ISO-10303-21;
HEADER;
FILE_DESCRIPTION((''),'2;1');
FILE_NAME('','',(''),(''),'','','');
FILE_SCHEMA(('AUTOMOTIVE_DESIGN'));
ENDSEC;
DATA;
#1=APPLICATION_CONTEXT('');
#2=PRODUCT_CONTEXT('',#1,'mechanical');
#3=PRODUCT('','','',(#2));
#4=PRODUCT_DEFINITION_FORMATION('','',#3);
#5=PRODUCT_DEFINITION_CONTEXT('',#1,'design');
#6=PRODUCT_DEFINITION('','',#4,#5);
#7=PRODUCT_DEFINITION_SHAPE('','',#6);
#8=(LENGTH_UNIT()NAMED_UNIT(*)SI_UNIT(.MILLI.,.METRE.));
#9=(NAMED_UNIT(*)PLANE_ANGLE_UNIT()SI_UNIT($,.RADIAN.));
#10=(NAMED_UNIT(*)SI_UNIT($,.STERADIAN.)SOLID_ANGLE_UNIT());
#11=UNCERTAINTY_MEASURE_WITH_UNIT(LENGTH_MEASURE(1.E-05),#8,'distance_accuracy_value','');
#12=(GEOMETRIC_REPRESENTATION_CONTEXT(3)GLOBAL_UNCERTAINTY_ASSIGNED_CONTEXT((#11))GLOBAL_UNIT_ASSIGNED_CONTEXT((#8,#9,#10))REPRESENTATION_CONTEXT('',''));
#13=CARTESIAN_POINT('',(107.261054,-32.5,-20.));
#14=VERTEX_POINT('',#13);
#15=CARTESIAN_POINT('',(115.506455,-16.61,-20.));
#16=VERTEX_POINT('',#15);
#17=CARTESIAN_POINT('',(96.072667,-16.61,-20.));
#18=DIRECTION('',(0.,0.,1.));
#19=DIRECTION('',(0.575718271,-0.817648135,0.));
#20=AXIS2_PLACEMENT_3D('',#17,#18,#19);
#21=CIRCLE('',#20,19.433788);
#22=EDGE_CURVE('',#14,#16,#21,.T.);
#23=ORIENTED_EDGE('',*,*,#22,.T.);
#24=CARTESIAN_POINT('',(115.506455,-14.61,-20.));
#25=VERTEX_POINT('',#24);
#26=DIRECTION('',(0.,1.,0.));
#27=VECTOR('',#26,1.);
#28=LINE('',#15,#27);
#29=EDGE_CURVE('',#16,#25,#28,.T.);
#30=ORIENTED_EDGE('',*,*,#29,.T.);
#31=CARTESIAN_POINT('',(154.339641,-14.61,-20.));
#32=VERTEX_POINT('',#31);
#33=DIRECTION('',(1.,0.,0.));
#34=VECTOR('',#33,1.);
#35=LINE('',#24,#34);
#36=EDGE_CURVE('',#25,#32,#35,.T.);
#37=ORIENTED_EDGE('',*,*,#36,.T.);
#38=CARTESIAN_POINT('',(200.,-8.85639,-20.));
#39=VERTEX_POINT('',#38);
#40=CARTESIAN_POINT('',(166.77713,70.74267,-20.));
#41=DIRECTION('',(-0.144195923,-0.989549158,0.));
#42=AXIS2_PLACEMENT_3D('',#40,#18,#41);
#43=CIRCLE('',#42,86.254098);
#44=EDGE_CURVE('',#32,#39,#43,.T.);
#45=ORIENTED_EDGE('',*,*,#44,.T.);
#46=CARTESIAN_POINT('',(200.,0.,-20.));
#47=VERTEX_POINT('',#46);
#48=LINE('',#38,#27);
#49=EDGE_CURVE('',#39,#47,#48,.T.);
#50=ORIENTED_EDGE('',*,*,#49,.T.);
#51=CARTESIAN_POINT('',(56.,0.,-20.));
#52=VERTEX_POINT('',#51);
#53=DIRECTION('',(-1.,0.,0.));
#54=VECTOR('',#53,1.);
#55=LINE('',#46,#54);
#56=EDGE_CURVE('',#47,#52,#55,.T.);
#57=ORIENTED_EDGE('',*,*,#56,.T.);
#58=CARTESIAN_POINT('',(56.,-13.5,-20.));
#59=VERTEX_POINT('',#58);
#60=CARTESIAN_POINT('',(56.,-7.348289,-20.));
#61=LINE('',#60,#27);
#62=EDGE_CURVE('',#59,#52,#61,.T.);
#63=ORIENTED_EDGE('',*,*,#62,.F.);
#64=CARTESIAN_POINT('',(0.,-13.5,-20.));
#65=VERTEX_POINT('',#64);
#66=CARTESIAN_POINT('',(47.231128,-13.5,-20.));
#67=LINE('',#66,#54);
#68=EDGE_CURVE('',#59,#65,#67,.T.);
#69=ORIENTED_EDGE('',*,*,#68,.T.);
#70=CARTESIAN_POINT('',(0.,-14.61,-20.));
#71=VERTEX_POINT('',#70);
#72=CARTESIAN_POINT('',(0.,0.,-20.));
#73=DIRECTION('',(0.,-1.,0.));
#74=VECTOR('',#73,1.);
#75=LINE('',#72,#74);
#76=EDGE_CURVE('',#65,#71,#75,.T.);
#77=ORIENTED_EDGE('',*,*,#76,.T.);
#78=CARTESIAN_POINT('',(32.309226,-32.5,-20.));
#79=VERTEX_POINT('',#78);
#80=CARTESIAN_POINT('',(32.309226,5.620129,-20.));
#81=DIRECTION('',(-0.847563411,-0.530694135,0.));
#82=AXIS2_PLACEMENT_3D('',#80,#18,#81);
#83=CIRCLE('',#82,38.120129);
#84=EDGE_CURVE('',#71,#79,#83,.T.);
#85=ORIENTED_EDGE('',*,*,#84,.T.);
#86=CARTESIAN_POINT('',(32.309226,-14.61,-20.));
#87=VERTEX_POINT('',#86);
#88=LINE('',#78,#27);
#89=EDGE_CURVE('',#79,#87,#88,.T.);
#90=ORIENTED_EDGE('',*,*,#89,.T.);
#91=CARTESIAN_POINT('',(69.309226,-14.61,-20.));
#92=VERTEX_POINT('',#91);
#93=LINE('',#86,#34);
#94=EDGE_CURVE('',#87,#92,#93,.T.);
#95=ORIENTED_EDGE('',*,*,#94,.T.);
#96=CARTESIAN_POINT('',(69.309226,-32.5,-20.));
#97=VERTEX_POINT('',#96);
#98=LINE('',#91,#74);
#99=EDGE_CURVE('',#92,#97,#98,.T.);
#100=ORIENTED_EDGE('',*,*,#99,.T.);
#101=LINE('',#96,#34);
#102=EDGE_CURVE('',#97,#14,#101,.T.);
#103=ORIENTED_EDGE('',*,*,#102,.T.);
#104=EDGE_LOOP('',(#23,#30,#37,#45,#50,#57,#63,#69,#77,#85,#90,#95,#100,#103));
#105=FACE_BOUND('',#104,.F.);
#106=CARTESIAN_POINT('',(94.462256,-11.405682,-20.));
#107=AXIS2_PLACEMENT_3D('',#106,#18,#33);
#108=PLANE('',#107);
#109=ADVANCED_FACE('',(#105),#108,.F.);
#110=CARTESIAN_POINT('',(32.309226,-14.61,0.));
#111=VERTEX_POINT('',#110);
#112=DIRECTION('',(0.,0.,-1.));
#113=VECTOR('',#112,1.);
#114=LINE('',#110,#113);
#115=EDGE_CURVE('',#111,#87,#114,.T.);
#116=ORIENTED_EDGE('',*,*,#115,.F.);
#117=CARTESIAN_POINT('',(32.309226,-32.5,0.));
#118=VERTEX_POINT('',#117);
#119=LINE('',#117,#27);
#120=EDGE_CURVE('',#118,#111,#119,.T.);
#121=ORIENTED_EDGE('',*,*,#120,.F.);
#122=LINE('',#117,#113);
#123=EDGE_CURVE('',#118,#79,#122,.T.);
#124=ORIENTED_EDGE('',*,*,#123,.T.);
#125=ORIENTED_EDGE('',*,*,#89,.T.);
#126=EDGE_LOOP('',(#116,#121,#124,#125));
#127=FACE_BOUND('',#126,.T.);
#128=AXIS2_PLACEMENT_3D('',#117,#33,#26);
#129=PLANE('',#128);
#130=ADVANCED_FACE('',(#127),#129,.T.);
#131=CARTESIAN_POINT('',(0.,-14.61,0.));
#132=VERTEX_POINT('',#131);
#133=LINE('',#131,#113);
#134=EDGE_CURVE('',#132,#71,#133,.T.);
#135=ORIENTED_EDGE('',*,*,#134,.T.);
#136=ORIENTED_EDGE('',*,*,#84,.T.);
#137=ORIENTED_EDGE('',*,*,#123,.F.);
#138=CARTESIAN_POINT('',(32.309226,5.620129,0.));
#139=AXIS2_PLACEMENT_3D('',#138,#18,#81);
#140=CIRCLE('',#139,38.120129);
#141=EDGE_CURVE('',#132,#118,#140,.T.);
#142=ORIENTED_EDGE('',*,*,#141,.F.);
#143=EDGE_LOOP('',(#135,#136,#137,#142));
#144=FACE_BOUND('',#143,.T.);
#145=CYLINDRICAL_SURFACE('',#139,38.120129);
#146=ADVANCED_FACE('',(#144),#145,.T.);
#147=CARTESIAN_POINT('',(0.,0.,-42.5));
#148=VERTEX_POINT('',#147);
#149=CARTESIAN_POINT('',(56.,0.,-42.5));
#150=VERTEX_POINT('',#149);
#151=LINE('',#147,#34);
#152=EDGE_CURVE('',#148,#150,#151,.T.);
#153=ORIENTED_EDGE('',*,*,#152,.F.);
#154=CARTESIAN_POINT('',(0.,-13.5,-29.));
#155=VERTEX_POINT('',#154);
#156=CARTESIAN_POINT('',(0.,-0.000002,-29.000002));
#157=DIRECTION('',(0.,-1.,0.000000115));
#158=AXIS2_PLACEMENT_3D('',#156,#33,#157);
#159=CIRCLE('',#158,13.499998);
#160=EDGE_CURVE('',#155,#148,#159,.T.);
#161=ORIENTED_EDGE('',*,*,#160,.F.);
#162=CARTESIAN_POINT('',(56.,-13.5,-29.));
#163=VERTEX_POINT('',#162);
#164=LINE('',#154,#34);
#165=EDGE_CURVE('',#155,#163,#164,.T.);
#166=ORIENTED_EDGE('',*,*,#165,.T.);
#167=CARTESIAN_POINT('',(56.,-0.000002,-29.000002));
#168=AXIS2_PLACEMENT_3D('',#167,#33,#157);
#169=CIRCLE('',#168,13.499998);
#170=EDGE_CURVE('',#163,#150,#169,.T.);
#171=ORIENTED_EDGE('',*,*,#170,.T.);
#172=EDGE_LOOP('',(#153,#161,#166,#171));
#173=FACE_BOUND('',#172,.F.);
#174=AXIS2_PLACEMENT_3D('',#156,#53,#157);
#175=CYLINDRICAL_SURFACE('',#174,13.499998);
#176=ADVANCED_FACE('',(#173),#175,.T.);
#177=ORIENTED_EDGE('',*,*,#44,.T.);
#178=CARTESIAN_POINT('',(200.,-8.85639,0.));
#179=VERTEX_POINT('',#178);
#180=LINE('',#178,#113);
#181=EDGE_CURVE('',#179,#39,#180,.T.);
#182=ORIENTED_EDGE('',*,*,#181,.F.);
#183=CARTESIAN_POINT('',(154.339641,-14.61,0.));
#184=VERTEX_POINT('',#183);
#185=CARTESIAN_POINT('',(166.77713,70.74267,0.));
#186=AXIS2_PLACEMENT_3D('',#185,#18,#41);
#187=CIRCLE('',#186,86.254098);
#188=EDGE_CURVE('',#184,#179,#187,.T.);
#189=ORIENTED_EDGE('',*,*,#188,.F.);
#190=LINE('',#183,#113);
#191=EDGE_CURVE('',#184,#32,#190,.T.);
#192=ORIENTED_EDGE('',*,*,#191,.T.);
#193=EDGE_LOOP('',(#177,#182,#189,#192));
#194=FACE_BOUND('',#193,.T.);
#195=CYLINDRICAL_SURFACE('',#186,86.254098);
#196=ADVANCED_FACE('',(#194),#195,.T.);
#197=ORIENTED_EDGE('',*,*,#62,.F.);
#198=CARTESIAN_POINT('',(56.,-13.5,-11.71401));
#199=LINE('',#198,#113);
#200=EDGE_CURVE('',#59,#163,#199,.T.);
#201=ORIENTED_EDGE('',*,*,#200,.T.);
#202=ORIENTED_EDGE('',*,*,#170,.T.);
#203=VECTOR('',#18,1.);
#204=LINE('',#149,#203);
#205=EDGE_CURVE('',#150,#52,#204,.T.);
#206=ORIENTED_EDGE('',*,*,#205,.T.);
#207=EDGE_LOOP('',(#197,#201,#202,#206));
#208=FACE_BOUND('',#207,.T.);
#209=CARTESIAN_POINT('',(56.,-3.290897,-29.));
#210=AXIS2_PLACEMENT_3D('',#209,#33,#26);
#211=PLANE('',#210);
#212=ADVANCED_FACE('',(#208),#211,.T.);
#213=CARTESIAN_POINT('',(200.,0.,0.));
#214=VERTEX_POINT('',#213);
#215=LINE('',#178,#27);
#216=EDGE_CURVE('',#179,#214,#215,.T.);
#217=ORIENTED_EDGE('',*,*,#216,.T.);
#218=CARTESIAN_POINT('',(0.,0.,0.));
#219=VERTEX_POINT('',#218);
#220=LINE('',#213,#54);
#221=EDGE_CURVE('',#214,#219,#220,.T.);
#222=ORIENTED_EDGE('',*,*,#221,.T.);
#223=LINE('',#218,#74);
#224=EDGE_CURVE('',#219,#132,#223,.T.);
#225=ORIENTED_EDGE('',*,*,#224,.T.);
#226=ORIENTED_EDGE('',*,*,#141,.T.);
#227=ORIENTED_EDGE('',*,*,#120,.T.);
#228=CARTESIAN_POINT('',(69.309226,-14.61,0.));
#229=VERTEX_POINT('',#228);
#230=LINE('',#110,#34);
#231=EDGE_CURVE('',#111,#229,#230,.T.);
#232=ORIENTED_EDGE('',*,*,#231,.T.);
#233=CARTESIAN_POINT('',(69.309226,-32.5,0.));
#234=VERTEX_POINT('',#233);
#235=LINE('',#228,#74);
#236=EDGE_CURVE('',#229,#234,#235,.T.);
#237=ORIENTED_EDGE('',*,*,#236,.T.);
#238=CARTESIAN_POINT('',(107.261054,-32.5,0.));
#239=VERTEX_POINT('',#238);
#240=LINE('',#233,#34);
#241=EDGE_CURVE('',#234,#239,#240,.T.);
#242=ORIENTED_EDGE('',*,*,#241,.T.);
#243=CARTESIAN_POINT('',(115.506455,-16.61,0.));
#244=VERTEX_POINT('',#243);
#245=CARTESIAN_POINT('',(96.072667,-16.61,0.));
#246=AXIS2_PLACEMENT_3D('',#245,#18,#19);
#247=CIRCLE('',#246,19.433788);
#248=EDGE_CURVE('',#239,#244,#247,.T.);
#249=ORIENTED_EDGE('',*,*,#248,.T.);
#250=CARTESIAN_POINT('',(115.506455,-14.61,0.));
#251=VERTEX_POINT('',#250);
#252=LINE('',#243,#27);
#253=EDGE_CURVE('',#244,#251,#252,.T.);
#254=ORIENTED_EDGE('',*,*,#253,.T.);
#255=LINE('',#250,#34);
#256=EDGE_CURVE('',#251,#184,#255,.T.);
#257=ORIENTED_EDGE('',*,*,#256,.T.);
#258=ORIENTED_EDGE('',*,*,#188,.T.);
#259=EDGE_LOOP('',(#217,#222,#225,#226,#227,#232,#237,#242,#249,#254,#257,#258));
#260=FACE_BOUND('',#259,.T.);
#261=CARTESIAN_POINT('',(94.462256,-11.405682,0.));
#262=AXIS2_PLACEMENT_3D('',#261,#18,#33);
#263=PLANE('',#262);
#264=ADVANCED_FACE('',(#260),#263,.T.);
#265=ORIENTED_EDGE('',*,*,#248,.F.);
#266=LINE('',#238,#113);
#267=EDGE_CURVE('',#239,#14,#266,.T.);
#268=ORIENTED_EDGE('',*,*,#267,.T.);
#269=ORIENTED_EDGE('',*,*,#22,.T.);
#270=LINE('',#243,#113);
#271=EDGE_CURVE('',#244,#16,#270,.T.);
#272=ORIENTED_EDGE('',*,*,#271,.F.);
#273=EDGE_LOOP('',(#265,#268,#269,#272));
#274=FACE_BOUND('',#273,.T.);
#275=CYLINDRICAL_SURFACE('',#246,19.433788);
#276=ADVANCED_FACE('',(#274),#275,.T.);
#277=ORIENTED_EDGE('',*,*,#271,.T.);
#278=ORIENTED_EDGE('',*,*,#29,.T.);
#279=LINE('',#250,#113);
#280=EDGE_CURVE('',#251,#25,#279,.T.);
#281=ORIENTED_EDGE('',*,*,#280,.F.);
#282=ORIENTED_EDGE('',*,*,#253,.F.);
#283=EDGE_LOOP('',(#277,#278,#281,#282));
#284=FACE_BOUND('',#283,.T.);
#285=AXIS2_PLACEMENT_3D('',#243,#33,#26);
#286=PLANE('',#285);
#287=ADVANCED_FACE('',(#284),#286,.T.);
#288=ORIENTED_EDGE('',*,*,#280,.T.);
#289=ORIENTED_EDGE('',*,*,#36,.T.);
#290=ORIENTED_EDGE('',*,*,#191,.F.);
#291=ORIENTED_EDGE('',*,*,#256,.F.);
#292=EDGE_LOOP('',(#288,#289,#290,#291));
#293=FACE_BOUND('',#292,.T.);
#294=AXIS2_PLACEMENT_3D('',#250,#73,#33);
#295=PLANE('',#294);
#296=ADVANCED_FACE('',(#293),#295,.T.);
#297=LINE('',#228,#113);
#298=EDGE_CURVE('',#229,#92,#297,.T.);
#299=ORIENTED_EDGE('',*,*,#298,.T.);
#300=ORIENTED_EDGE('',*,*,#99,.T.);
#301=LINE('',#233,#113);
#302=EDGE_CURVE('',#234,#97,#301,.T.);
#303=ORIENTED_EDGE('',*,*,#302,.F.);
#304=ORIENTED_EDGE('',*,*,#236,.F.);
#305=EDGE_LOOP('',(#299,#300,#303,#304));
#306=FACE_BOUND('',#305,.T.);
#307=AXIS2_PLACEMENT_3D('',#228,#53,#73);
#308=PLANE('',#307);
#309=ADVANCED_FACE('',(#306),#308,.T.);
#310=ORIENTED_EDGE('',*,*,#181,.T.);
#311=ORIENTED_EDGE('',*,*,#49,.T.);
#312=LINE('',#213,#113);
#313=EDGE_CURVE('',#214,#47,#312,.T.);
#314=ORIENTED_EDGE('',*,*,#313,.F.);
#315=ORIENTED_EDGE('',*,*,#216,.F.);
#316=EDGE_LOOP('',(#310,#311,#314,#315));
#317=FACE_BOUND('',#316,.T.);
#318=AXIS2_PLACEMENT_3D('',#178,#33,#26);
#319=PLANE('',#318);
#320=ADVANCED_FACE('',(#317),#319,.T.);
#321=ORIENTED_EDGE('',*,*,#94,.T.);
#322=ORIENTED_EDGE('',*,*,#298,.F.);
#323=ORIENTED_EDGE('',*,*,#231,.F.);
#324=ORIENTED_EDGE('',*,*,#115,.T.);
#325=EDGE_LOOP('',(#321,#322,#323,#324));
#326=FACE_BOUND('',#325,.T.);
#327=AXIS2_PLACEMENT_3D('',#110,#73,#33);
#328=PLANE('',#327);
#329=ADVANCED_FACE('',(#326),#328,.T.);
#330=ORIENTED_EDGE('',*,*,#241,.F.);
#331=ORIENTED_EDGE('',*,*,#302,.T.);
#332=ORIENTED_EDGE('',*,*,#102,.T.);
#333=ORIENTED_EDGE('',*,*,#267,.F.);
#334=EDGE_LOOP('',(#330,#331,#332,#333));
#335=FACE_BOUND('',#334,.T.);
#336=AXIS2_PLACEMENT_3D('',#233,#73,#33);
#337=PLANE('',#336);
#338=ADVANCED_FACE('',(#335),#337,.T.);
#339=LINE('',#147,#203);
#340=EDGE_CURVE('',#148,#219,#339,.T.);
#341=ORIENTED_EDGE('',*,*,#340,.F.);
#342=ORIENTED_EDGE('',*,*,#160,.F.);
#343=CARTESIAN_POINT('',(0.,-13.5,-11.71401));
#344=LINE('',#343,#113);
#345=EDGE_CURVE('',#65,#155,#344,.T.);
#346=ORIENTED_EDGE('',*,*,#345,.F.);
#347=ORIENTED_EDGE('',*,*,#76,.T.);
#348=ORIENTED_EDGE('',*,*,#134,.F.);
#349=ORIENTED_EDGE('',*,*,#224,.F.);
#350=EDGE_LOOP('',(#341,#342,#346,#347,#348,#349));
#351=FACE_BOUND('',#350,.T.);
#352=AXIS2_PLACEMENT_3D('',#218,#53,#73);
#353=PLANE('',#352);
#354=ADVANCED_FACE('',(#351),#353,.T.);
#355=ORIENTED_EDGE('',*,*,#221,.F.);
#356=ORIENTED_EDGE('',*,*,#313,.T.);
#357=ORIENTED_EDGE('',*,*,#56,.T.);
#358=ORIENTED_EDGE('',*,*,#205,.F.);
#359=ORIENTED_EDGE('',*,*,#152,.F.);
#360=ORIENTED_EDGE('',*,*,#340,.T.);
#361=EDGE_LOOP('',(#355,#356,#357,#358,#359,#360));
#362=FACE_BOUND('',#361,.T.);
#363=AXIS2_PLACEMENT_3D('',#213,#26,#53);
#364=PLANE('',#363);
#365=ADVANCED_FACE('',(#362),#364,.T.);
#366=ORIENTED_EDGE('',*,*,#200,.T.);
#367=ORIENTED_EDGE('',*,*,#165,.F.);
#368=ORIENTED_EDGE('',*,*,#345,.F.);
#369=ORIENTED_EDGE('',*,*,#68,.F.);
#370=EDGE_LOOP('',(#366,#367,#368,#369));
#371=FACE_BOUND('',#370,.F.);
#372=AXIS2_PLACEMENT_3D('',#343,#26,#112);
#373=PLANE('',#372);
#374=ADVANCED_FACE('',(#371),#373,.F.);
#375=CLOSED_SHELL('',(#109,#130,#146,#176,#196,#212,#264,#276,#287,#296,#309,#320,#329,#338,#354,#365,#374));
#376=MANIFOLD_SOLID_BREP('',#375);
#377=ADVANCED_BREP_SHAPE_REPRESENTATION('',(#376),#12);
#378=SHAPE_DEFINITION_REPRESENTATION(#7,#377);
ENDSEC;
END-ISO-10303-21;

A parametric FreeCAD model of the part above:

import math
import FreeCAD as App
import Part
import Sketcher

doc = App.newDocument("Part")
body = doc.addObject("PartDesign::Body", "Body")

# Sketch on XY plane
sketch1 = body.newObject("Sketcher::SketchObject", "Sketch")
sketch1.AttachmentSupport = (doc.getObject("XY_Plane"), [""])
sketch1.MapMode = "FlatFace"
sketch1.addGeometry([
    Part.LineSegment(App.Vector(200, 0, 0), App.Vector(0, 0, 0)),  # 0
    Part.LineSegment(App.Vector(0, 0, 0), App.Vector(0, -14.61, 0)),  # 1
    Part.ArcOfCircle(Part.Circle(App.Vector(32.309226, 5.620129, 0), App.Vector(0, 0, 1), 38.120129), math.radians(-147.947633), math.radians(-90)),  # 2
    Part.LineSegment(App.Vector(32.309226, -32.5, 0), App.Vector(32.309226, -14.61, 0)),  # 3
    Part.LineSegment(App.Vector(32.309226, -14.61, 0), App.Vector(69.309226, -14.61, 0)),  # 4
    Part.LineSegment(App.Vector(69.309226, -14.61, 0), App.Vector(69.309226, -32.5, 0)),  # 5
    Part.LineSegment(App.Vector(69.309226, -32.5, 0), App.Vector(107.261054, -32.5, 0)),  # 6
    Part.ArcOfCircle(Part.Circle(App.Vector(96.072667, -16.61, 0), App.Vector(0, 0, 1), 19.433788), math.radians(-54.850051), math.radians(-0.000001)),  # 7
    Part.LineSegment(App.Vector(115.506455, -16.61, 0), App.Vector(115.506455, -14.61, 0)),  # 8
    Part.LineSegment(App.Vector(115.506455, -14.61, 0), App.Vector(154.339641, -14.61, 0)),  # 9
    Part.ArcOfCircle(Part.Circle(App.Vector(166.77713, 70.74267, 0), App.Vector(0, 0, 1), 86.254098), math.radians(-98.29072), math.radians(-67.345433)),  # 10
    Part.LineSegment(App.Vector(200, -8.85639, 0), App.Vector(200, 0, 0)),  # 11
], False)
sketch1.addConstraint([
    Sketcher.Constraint("Coincident", 0, 2, 1, 1),
    Sketcher.Constraint("Coincident", 1, 2, 2, 1),
    Sketcher.Constraint("Coincident", 2, 2, 3, 1),
    Sketcher.Constraint("Coincident", 3, 2, 4, 1),
    Sketcher.Constraint("Coincident", 4, 2, 5, 1),
    Sketcher.Constraint("Coincident", 5, 2, 6, 1),
    Sketcher.Constraint("Coincident", 6, 2, 7, 1),
    Sketcher.Constraint("Tangent", 7, 2, 8, 1),
    Sketcher.Constraint("Coincident", 8, 2, 9, 1),
    Sketcher.Constraint("Coincident", 9, 2, 10, 1),
    Sketcher.Constraint("Coincident", 10, 2, 11, 1),
    Sketcher.Constraint("Coincident", 11, 2, 0, 1),
    Sketcher.Constraint("Horizontal", 0),
    Sketcher.Constraint("Vertical", 1),
    Sketcher.Constraint("Vertical", 3),
    Sketcher.Constraint("Horizontal", 4),
    Sketcher.Constraint("Vertical", 5),
    Sketcher.Constraint("Horizontal", 6),
    Sketcher.Constraint("Vertical", 8),
    Sketcher.Constraint("Horizontal", 9),
    Sketcher.Constraint("Vertical", 11),
    Sketcher.Constraint("Coincident", 0, 2, -1, 1),
    Sketcher.Constraint("Horizontal", 1, 2, 3, 2),
    Sketcher.Constraint("Horizontal", 2, 2, 5, 2),
    Sketcher.Constraint("Horizontal", 4, 2, 8, 2),
    Sketcher.Constraint("DistanceX", 0, 2, 0, 1, 200.0),
    Sketcher.Constraint("DistanceX", 4, 1, 4, 2, 37.0),
    Sketcher.Constraint("DistanceY", 8, 1, 8, 2, 2.0),
    Sketcher.Constraint("DistanceX", 2, 3, 4, 2, 37.0),
    Sketcher.Constraint("DistanceY", 1, 2, 1, 1, 14.61),
    Sketcher.Constraint("DistanceY", 3, 1, 3, 2, 17.89),
    Sketcher.Constraint("Radius", 10, 86.254098),
    Sketcher.Constraint("Radius", 2, 38.120129),
    Sketcher.Constraint("Radius", 7, 19.433788),
    Sketcher.Constraint("DistanceX", 6, 1, 6, 2, 37.951828),
    Sketcher.Constraint("DistanceY", 11, 1, 11, 2, 8.85639),
    Sketcher.Constraint("DistanceX", 9, 1, 9, 2, 38.833186),
])
pad1 = body.newObject("PartDesign::Pad", "Pad")
pad1.Profile = sketch1
pad1.Length = 20
pad1.Reversed = True

# Sketch on YZ plane
sketch2 = body.newObject("Sketcher::SketchObject", "Sketch001")
sketch2.AttachmentSupport = (doc.getObject("YZ_Plane"), [""])
sketch2.MapMode = "FlatFace"
sketch2.addGeometry([
    Part.LineSegment(App.Vector(0, -11.71401, 0), App.Vector(-13.5, -11.71401, 0)),
    Part.LineSegment(App.Vector(-13.5, -11.71401, 0), App.Vector(-13.5, -29, 0)),
    Part.ArcOfCircle(Part.Circle(App.Vector(-0.000002, -29.000002, 0), App.Vector(0, 0, 1), 13.499998), math.radians(179.999993), math.radians(270.000007)),
    Part.LineSegment(App.Vector(0, -42.5, 0), App.Vector(0, -11.71401, 0)),
], False)
sketch2.addConstraint([
    Sketcher.Constraint("Coincident", 0, 2, 1, 1),
    Sketcher.Constraint("Tangent", 1, 2, 2, 1),
    Sketcher.Constraint("Coincident", 2, 2, 3, 1),
    Sketcher.Constraint("Coincident", 3, 2, 0, 1),
    Sketcher.Constraint("Horizontal", 0),
    Sketcher.Constraint("Vertical", 1),
    Sketcher.Constraint("Vertical", 3),
    Sketcher.Constraint("PointOnObject", 2, 3, -2),
    Sketcher.Constraint("PointOnObject", 2, 2, -2),
    Sketcher.Constraint("Radius", 2, 13.499998),
    Sketcher.Constraint("DistanceY", 2, 3, -1, 1, 29.000002),
    Sketcher.Constraint("DistanceY", 1, 2, 1, 1, 17.28599),
])
pad2 = body.newObject("PartDesign::Pad", "Pad001")
pad2.Profile = sketch2
pad2.Length = 56

# Sketch on YZ plane
sketch3 = body.newObject("Sketcher::SketchObject", "Sketch002")
sketch3.AttachmentSupport = (doc.getObject("YZ_Plane"), [""])
sketch3.MapMode = "FlatFace"
sketch3.addGeometry([
    Part.LineSegment(App.Vector(0, -38.5, 0), App.Vector(0, -19.5, 0)),
    Part.ArcOfCircle(Part.Circle(App.Vector(0, -29, 0), App.Vector(0, 0, 1), 9.5), math.radians(90), math.radians(270)),
], False)
sketch3.addConstraint([
    Sketcher.Constraint("Coincident", 0, 1, 1, 2),
    Sketcher.Constraint("Coincident", 1, 1, 0, 2),
    Sketcher.Constraint("Vertical", 0),
    Sketcher.Constraint("PointOnObject", 1, 3, -2),
    Sketcher.Constraint("PointOnObject", 0, 1, -2),
    Sketcher.Constraint("Radius", 1, 9.5),
    Sketcher.Constraint("DistanceY", 1, 3, -1, 1, 29.0),
])
pocket1 = body.newObject("PartDesign::Pocket", "Pocket")
pocket1.Profile = sketch3
pocket1.Length = 52

doc.recompute()
